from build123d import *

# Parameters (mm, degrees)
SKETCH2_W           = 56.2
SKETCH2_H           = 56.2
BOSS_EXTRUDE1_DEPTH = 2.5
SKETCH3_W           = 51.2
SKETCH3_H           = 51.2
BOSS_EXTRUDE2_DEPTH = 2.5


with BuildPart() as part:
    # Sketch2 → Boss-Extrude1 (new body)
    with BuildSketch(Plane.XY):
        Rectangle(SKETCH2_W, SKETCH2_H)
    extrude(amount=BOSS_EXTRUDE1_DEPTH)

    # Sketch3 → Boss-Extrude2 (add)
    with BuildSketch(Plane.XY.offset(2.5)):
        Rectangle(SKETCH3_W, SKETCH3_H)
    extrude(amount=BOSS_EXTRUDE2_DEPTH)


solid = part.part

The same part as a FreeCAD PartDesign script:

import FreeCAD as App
import Part
import Sketcher

doc = App.newDocument("Part")
body = doc.addObject("PartDesign::Body", "Body")

# Sketch on XY plane
sketch1 = doc.addObject("Sketcher::SketchObject", "Sketch")
body.addObject(sketch1)
sketch1.AttachmentSupport = (doc.XY_Plane, [""])
sketch1.MapMode = "FlatFace"
sketch1.addGeometry([
    Part.LineSegment(App.Vector(-28.1, 28.1, 0), App.Vector(-28.1, -28.1, 0)),
    Part.LineSegment(App.Vector(-28.1, -28.1, 0), App.Vector(28.1, -28.1, 0)),
    Part.LineSegment(App.Vector(28.1, -28.1, 0), App.Vector(28.1, 28.1, 0)),
    Part.LineSegment(App.Vector(28.1, 28.1, 0), App.Vector(-28.1, 28.1, 0)),
], False)
sketch1.addConstraint([
    Sketcher.Constraint("Coincident", 0, 2, 1, 1),
    Sketcher.Constraint("Coincident", 1, 2, 2, 1),
    Sketcher.Constraint("Coincident", 2, 2, 3, 1),
    Sketcher.Constraint("Coincident", 3, 2, 0, 1),
    Sketcher.Constraint("Vertical", 0),
    Sketcher.Constraint("Horizontal", 1),
    Sketcher.Constraint("Vertical", 2),
    Sketcher.Constraint("Horizontal", 3),
    Sketcher.Constraint("Symmetric", 0, 2, 2, 2, -1, 1),
    Sketcher.Constraint("Equal", 3, 0),
    Sketcher.Constraint("DistanceX", 1, 1, 1, 2, 56.2),
])
pad1 = doc.addObject("PartDesign::Pad", "Pad")
body.addObject(pad1)
pad1.Profile = sketch1
pad1.Length = 2.5

# Sketch on XY plane
sketch2 = doc.addObject("Sketcher::SketchObject", "Sketch001")
body.addObject(sketch2)
sketch2.AttachmentSupport = (doc.XY_Plane, [""])
sketch2.MapMode = "FlatFace"
sketch2.AttachmentOffset = App.Placement(App.Vector(0, 0, 2.5), App.Rotation())
sketch2.addGeometry([
    Part.LineSegment(App.Vector(-25.6, 25.6, 0), App.Vector(-25.6, -25.6, 0)),
    Part.LineSegment(App.Vector(-25.6, -25.6, 0), App.Vector(25.6, -25.6, 0)),
    Part.LineSegment(App.Vector(25.6, -25.6, 0), App.Vector(25.6, 25.6, 0)),
    Part.LineSegment(App.Vector(25.6, 25.6, 0), App.Vector(-25.6, 25.6, 0)),
], False)
sketch2.addConstraint([
    Sketcher.Constraint("Coincident", 0, 2, 1, 1),
    Sketcher.Constraint("Coincident", 1, 2, 2, 1),
    Sketcher.Constraint("Coincident", 2, 2, 3, 1),
    Sketcher.Constraint("Coincident", 3, 2, 0, 1),
    Sketcher.Constraint("Vertical", 0),
    Sketcher.Constraint("Horizontal", 1),
    Sketcher.Constraint("Vertical", 2),
    Sketcher.Constraint("Horizontal", 3),
    Sketcher.Constraint("Symmetric", 0, 2, 2, 2, -1, 1),
    Sketcher.Constraint("Equal", 3, 0),
    Sketcher.Constraint("DistanceX", 1, 1, 1, 2, 51.2),
])
pad2 = doc.addObject("PartDesign::Pad", "Pad001")
body.addObject(pad2)
pad2.Profile = sketch2
pad2.Length = 2.5

doc.recompute()
